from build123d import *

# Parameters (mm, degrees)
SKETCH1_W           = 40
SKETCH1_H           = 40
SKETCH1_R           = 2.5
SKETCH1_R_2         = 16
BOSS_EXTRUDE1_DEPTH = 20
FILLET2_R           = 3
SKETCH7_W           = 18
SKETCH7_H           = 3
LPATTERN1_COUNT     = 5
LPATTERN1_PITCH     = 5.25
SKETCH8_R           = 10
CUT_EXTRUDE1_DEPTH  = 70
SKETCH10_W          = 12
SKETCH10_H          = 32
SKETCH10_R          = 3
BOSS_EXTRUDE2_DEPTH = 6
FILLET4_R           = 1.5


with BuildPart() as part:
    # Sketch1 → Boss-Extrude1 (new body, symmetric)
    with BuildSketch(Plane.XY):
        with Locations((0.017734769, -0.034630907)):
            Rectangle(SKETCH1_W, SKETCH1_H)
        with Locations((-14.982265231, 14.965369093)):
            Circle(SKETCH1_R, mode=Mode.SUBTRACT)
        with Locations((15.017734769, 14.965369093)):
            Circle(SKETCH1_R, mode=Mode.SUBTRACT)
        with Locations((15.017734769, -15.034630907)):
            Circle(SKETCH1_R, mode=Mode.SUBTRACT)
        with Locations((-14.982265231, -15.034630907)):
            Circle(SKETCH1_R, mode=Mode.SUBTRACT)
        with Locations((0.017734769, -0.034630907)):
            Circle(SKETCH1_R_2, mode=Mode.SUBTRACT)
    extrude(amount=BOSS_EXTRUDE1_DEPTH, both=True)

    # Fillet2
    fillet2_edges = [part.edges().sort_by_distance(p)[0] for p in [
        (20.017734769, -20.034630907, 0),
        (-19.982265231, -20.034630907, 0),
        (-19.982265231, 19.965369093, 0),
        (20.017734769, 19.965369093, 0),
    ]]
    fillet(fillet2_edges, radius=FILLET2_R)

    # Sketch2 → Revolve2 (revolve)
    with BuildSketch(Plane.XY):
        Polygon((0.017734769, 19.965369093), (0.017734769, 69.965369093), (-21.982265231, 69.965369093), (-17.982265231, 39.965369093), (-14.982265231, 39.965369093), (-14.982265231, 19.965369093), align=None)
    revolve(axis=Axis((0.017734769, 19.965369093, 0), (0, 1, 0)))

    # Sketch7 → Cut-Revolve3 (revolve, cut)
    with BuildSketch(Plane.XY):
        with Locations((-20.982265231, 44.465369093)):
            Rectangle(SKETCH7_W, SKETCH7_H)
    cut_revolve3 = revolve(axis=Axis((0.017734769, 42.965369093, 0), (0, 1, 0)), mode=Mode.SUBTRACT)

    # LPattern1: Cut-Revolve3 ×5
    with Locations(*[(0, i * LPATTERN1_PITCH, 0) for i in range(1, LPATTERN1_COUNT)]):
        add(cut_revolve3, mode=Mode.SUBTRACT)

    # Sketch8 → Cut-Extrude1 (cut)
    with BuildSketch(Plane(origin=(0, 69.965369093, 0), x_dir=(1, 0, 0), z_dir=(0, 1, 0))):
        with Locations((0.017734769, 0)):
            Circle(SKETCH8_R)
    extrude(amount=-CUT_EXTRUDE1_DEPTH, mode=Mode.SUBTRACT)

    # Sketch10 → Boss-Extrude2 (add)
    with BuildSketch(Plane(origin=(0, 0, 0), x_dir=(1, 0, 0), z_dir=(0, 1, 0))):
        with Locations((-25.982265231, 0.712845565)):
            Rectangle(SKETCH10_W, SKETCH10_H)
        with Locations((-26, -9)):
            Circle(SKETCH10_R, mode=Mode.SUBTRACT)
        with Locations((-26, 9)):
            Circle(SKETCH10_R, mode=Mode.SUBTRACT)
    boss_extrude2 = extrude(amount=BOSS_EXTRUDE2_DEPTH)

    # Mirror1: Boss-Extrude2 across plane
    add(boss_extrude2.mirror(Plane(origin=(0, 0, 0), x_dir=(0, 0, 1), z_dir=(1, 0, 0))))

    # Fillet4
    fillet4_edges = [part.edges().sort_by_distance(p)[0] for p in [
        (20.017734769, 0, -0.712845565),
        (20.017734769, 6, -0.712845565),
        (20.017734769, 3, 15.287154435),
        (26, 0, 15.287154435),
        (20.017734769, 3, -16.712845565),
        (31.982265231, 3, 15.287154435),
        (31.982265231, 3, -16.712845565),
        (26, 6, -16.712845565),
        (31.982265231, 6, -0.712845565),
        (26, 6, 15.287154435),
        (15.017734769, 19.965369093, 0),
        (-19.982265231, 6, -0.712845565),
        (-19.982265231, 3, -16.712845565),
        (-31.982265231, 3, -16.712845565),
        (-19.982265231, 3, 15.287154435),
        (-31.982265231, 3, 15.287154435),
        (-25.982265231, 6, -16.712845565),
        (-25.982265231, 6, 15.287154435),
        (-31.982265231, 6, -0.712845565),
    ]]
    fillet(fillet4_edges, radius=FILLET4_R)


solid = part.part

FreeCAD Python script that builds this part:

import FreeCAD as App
import Part
import Sketcher
from FreeCAD import Vector
Q = App.Units.Quantity


def edges_at(feature, points):
    """Names of the edges that pass closest to the given points."""
    edges = feature.Shape.Edges
    near = lambda p: min(range(len(edges)), key=lambda i: edges[i].distToShape(Part.Vertex(*p))[0])
    return sorted({f"Edge{near(p) + 1}" for p in points})

doc = App.newDocument("Part")
body = doc.addObject("PartDesign::Body", "Body")

# Sketch on XY plane
sketch1 = doc.addObject("Sketcher::SketchObject", "Sketch")
body.addObject(sketch1)
sketch1.AttachmentSupport = (doc.XY_Plane, [""])
sketch1.MapMode = "FlatFace"
sketch1.addGeometry(Part.LineSegment(Vector(-20, 20, 0), Vector(-20, -20, 0)), False)
sketch1.addGeometry(Part.LineSegment(Vector(-20, -20, 0), Vector(20, -20, 0)), False)
sketch1.addGeometry(Part.LineSegment(Vector(20, -20, 0), Vector(20, 20, 0)), False)
sketch1.addGeometry(Part.LineSegment(Vector(20, 20, 0), Vector(-20, 20, 0)), False)
sketch1.addGeometry(Part.Circle(Vector(-15, -15, 0), Vector(0, 0, 1), 2.5), False)
sketch1.addGeometry(Part.Circle(Vector(15, -15, 0), Vector(0, 0, 1), 2.5), False)
sketch1.addGeometry(Part.Circle(Vector(-15, 15, 0), Vector(0, 0, 1), 2.5), False)
sketch1.addGeometry(Part.Circle(Vector(0, 0, 0), Vector(0, 0, 1), 16), False)
sketch1.addGeometry(Part.Circle(Vector(15, 15, 0), Vector(0, 0, 1), 2.5), False)
sketch1.addConstraint(Sketcher.Constraint("Coincident", 0, 2, 1, 1))
sketch1.addConstraint(Sketcher.Constraint("Coincident", 1, 2, 2, 1))
sketch1.addConstraint(Sketcher.Constraint("Coincident", 2, 2, 3, 1))
sketch1.addConstraint(Sketcher.Constraint("Coincident", 3, 2, 0, 1))
sketch1.addConstraint(Sketcher.Constraint("Vertical", 0))
sketch1.addConstraint(Sketcher.Constraint("Horizontal", 1))
sketch1.addConstraint(Sketcher.Constraint("Vertical", 2))
sketch1.addConstraint(Sketcher.Constraint("Horizontal", 3))
sketch1.addConstraint(Sketcher.Constraint("Equal", 4, 5))
sketch1.addConstraint(Sketcher.Constraint("Equal", 5, 6))
sketch1.addConstraint(Sketcher.Constraint("Equal", 6, 8))
sketch1.addConstraint(Sketcher.Constraint("Horizontal", 4, 3, 5, 3))
sketch1.addConstraint(Sketcher.Constraint("Horizontal", 6, 3, 8, 3))
sketch1.addConstraint(Sketcher.Constraint("Vertical", 4, 3, 6, 3))
sketch1.addConstraint(Sketcher.Constraint("Vertical", 5, 3, 8, 3))
sketch1.addConstraint(Sketcher.Constraint("Equal", 3, 0))
sketch1.addConstraint(Sketcher.Constraint("Diameter", 4, Q("5 mm")))
sketch1.addConstraint(Sketcher.Constraint("Diameter", 7, Q("32 mm")))
sketch1.addConstraint(Sketcher.Constraint("DistanceX", 1, 1, 1, 2, Q("40 mm")))
sketch1.addConstraint(Sketcher.Constraint("DistanceX", 4, 3, 5, 3, Q("30 mm")))
sketch1.addConstraint(Sketcher.Constraint("DistanceY", 4, 3, 6, 3, Q("30 mm")))
sketch1.addConstraint(Sketcher.Constraint("DistanceX", 4, 3, 7, 3, Q("15 mm")))
sketch1.addConstraint(Sketcher.Constraint("DistanceY", 4, 3, 7, 3, Q("15 mm")))
sketch1.addConstraint(Sketcher.Constraint("DistanceX", 0, 2, 4, 3, Q("5 mm")))
sketch1.addConstraint(Sketcher.Constraint("DistanceY", 0, 2, 4, 3, Q("5 mm")))
sketch1.addConstraint(Sketcher.Constraint("DistanceY", 4, 3, -1, 1, Q("15.034631 mm")))
sketch1.addConstraint(Sketcher.Constraint("DistanceX", 4, 3, -1, 1, Q("14.982265 mm")))
pad1 = doc.addObject("PartDesign::Pad", "Pad")
body.addObject(pad1)
pad1.Profile = sketch1
pad1.Length = 40
pad1.Midplane = True
doc.recompute()

fillet = doc.addObject("PartDesign::Fillet", "Fillet")
body.addObject(fillet)
fillet.Base = (pad1, edges_at(pad1, [
    (20.018, -20.035, 0),
    (-19.982, -20.035, 0),
    (-19.982, 19.965, 0),
    (20.018, 19.965, 0),
]))
fillet.Radius = 3

# Sketch on XY plane
sketch2 = doc.addObject("Sketcher::SketchObject", "Sketch001")
body.addObject(sketch2)
sketch2.AttachmentSupport = (doc.XY_Plane, [""])
sketch2.MapMode = "FlatFace"
sketch2.addGeometry(Part.LineSegment(Vector(0, 20, 0), Vector(0, 70, 0)), False)
sketch2.addGeometry(Part.LineSegment(Vector(0, 70, 0), Vector(-22, 70, 0)), False)
sketch2.addGeometry(Part.LineSegment(Vector(-22, 70, 0), Vector(-18, 40, 0)), False)
sketch2.addGeometry(Part.LineSegment(Vector(-18, 40, 0), Vector(-15, 40, 0)), False)
sketch2.addGeometry(Part.LineSegment(Vector(-15, 40, 0), Vector(-15, 20, 0)), False)
sketch2.addGeometry(Part.LineSegment(Vector(-15, 20, 0), Vector(0, 20, 0)), False)
sketch2.addGeometry(Part.LineSegment(Vector(0, 20, 0), Vector(0, 70, 0)), True)  # axis
sketch2.addConstraint(Sketcher.Constraint("Coincident", 0, 2, 1, 1))
sketch2.addConstraint(Sketcher.Constraint("Coincident", 1, 2, 2, 1))
sketch2.addConstraint(Sketcher.Constraint("Coincident", 2, 2, 3, 1))
sketch2.addConstraint(Sketcher.Constraint("Coincident", 3, 2, 4, 1))
sketch2.addConstraint(Sketcher.Constraint("Coincident", 4, 2, 5, 1))
sketch2.addConstraint(Sketcher.Constraint("Coincident", 5, 2, 0, 1))
sketch2.addConstraint(Sketcher.Constraint("Vertical", 0))
sketch2.addConstraint(Sketcher.Constraint("Horizontal", 1))
sketch2.addConstraint(Sketcher.Constraint("Horizontal", 3))
sketch2.addConstraint(Sketcher.Constraint("Vertical", 4))
sketch2.addConstraint(Sketcher.Constraint("Horizontal", 5))
sketch2.addConstraint(Sketcher.Constraint("Vertical", 6))
sketch2.addConstraint(Sketcher.Constraint("Coincident", 6, 1, 5, 2))
sketch2.addConstraint(Sketcher.Constraint("Horizontal", 1, 2, 6, 2))
sketch2.addConstraint(Sketcher.Constraint("DistanceX", 1, 2, 1, 1, Q("22 mm")))
sketch2.addConstraint(Sketcher.Constraint("DistanceX", 3, 1, 3, 2, Q("3 mm")))
sketch2.addConstraint(Sketcher.Constraint("DistanceX", 5, 1, 5, 2, Q("15 mm")))
sketch2.addConstraint(Sketcher.Constraint("DistanceY", 0, 1, 0, 2, Q("50 mm")))
sketch2.addConstraint(Sketcher.Constraint("DistanceY", 4, 2, 4, 1, Q("20 mm")))
sketch2.addConstraint(Sketcher.Constraint("DistanceY", -1, 1, 0, 2, Q("69.965369 mm")))
sketch2.addConstraint(Sketcher.Constraint("DistanceX", -1, 1, 0, 2, Q("0.017735 mm")))
revolution = doc.addObject("PartDesign::Revolution", "Revolution")
body.addObject(revolution)
revolution.Profile = sketch2
revolution.ReferenceAxis = (sketch2, ["Axis0"])
revolution.Angle = 360

# Sketch on XY plane
sketch3 = doc.addObject("Sketcher::SketchObject", "Sketch002")
body.addObject(sketch3)
sketch3.AttachmentSupport = (doc.XY_Plane, [""])
sketch3.MapMode = "FlatFace"
sketch3.addGeometry(Part.LineSegment(Vector(-30, 46, 0), Vector(-30, 43, 0)), False)
sketch3.addGeometry(Part.LineSegment(Vector(-30, 43, 0), Vector(-12, 43, 0)), False)
sketch3.addGeometry(Part.LineSegment(Vector(-12, 43, 0), Vector(-12, 46, 0)), False)
sketch3.addGeometry(Part.LineSegment(Vector(-12, 46, 0), Vector(-30, 46, 0)), False)
sketch3.addGeometry(Part.LineSegment(Vector(0, 43, 0), Vector(0, 46, 0)), True)  # axis
sketch3.addConstraint(Sketcher.Constraint("Coincident", 0, 2, 1, 1))
sketch3.addConstraint(Sketcher.Constraint("Coincident", 1, 2, 2, 1))
sketch3.addConstraint(Sketcher.Constraint("Coincident", 2, 2, 3, 1))
sketch3.addConstraint(Sketcher.Constraint("Coincident", 3, 2, 0, 1))
sketch3.addConstraint(Sketcher.Constraint("Vertical", 0))
sketch3.addConstraint(Sketcher.Constraint("Horizontal", 1))
sketch3.addConstraint(Sketcher.Constraint("Vertical", 2))
sketch3.addConstraint(Sketcher.Constraint("Horizontal", 3))
sketch3.addConstraint(Sketcher.Constraint("Vertical", 4))
sketch3.addConstraint(Sketcher.Constraint("Horizontal", 1, 2, 4, 1))
sketch3.addConstraint(Sketcher.Constraint("Horizontal", 3, 2, 4, 2))
sketch3.addConstraint(Sketcher.Constraint("DistanceX", 1, 1, 1, 2, Q("18 mm")))
sketch3.addConstraint(Sketcher.Constraint("DistanceY", 0, 2, 0, 1, Q("3 mm")))
sketch3.addConstraint(Sketcher.Constraint("DistanceX", 1, 2, 4, 1, Q("12 mm")))
sketch3.addConstraint(Sketcher.Constraint("DistanceY", -1, 1, 0, 2, Q("42.965369 mm")))
sketch3.addConstraint(Sketcher.Constraint("DistanceX", 0, 2, -1, 1, Q("29.982265 mm")))
groove = doc.addObject("PartDesign::Groove", "Groove")
body.addObject(groove)
groove.Profile = sketch3
groove.ReferenceAxis = (sketch3, ["Axis0"])
groove.Angle = 360
doc.recompute()

linearpattern = doc.addObject("PartDesign::LinearPattern", "LinearPattern")
body.addObject(linearpattern)
linearpattern.Originals = [groove]
linearpattern.Direction = (doc.Y_Axis, [""])
linearpattern.Mode = "offset"
linearpattern.Offset = 5.25
linearpattern.Occurrences = 5
body.Tip = linearpattern

# Sketch on XZ plane
sketch4 = doc.addObject("Sketcher::SketchObject", "Sketch003")
body.addObject(sketch4)
sketch4.AttachmentSupport = (doc.XZ_Plane, [""])
sketch4.MapMode = "FlatFace"
sketch4.AttachmentOffset = App.Placement(Vector(0, 0, -69.965369), App.Rotation())
sketch4.addGeometry(Part.Circle(Vector(0, 0, 0), Vector(0, 0, 1), 10), False)
sketch4.addConstraint(Sketcher.Constraint("PointOnObject", 0, 3, -1))
sketch4.addConstraint(Sketcher.Constraint("Diameter", 0, Q("20 mm")))
sketch4.addConstraint(Sketcher.Constraint("DistanceX", -1, 1, 0, 3, Q("0.017735 mm")))
pocket1 = doc.addObject("PartDesign::Pocket", "Pocket")
body.addObject(pocket1)
pocket1.Profile = sketch4
pocket1.Length = 70
pocket1.Reversed = True

# Sketch on XZ plane
sketch5 = doc.addObject("Sketcher::SketchObject", "Sketch004")
body.addObject(sketch5)
sketch5.AttachmentSupport = (doc.XZ_Plane, [""])
sketch5.MapMode = "FlatFace"
sketch5.addGeometry(Part.LineSegment(Vector(-32, -16.7, 0), Vector(-32, 15.3, 0)), False)
sketch5.addGeometry(Part.LineSegment(Vector(-32, 15.3, 0), Vector(-20, 15.3, 0)), False)
sketch5.addGeometry(Part.LineSegment(Vector(-20, 15.3, 0), Vector(-20, -16.7, 0)), False)
sketch5.addGeometry(Part.LineSegment(Vector(-20, -16.7, 0), Vector(-32, -16.7, 0)), False)
sketch5.addGeometry(Part.Circle(Vector(-26, 9, 0), Vector(0, 0, 1), 3), False)
sketch5.addGeometry(Part.Circle(Vector(-26, -9, 0), Vector(0, 0, 1), 3), False)
sketch5.addConstraint(Sketcher.Constraint("Coincident", 0, 2, 1, 1))
sketch5.addConstraint(Sketcher.Constraint("Coincident", 1, 2, 2, 1))
sketch5.addConstraint(Sketcher.Constraint("Coincident", 2, 2, 3, 1))
sketch5.addConstraint(Sketcher.Constraint("Coincident", 3, 2, 0, 1))
sketch5.addConstraint(Sketcher.Constraint("Vertical", 0))
sketch5.addConstraint(Sketcher.Constraint("Horizontal", 1))
sketch5.addConstraint(Sketcher.Constraint("Vertical", 2))
sketch5.addConstraint(Sketcher.Constraint("Horizontal", 3))
sketch5.addConstraint(Sketcher.Constraint("Equal", 4, 5))
sketch5.addConstraint(Sketcher.Constraint("Symmetric", 4, 3, 5, 3, -1))
sketch5.addConstraint(Sketcher.Constraint("Diameter", 4, Q("6 mm")))
sketch5.addConstraint(Sketcher.Constraint("DistanceX", 1, 1, 1, 2, Q("12 mm")))
sketch5.addConstraint(Sketcher.Constraint("DistanceY", 0, 1, 0, 2, Q("32 mm")))
sketch5.addConstraint(Sketcher.Constraint("DistanceX", 4, 3, -1, 1, Q("26 mm")))
sketch5.addConstraint(Sketcher.Constraint("DistanceY", -1, 1, 4, 3, Q("9 mm")))
sketch5.addConstraint(Sketcher.Constraint("DistanceX", 0, 2, -1, 1, Q("31.982265 mm")))
sketch5.addConstraint(Sketcher.Constraint("DistanceY", -1, 1, 0, 2, Q("15.287154 mm")))
pad2 = doc.addObject("PartDesign::Pad", "Pad001")
body.addObject(pad2)
pad2.Profile = sketch5
pad2.Length = 6
pad2.Reversed = True
doc.recompute()

mirrored = doc.addObject("PartDesign::Mirrored", "Mirrored")
body.addObject(mirrored)
mirrored.Originals = [pad2]
mirrored.MirrorPlane = (doc.YZ_Plane, [""])
body.Tip = mirrored
doc.recompute()

fillet2 = doc.addObject("PartDesign::Fillet", "Fillet001")
body.addObject(fillet2)
fillet2.Base = (mirrored, edges_at(mirrored, [
    (20.018, 0, -0.713),
    (20.018, 6, -0.713),
    (20.018, 3, 15.287),
    (26, 0, 15.287),
    (20.018, 3, -16.713),
    (31.982, 3, 15.287),
    (31.982, 3, -16.713),
    (26, 6, -16.713),
    (31.982, 6, -0.713),
    (26, 6, 15.287),
    (15.018, 19.965, 0),
    (-19.982, 6, -0.713),
    (-19.982, 3, -16.713),
    (-31.982, 3, -16.713),
    (-19.982, 3, 15.287),
    (-31.982, 3, 15.287),
    (-25.982, 6, -16.713),
    (-25.982, 6, 15.287),
    (-31.982, 6, -0.713),
]))
fillet2.Radius = 1.5

doc.recompute()
